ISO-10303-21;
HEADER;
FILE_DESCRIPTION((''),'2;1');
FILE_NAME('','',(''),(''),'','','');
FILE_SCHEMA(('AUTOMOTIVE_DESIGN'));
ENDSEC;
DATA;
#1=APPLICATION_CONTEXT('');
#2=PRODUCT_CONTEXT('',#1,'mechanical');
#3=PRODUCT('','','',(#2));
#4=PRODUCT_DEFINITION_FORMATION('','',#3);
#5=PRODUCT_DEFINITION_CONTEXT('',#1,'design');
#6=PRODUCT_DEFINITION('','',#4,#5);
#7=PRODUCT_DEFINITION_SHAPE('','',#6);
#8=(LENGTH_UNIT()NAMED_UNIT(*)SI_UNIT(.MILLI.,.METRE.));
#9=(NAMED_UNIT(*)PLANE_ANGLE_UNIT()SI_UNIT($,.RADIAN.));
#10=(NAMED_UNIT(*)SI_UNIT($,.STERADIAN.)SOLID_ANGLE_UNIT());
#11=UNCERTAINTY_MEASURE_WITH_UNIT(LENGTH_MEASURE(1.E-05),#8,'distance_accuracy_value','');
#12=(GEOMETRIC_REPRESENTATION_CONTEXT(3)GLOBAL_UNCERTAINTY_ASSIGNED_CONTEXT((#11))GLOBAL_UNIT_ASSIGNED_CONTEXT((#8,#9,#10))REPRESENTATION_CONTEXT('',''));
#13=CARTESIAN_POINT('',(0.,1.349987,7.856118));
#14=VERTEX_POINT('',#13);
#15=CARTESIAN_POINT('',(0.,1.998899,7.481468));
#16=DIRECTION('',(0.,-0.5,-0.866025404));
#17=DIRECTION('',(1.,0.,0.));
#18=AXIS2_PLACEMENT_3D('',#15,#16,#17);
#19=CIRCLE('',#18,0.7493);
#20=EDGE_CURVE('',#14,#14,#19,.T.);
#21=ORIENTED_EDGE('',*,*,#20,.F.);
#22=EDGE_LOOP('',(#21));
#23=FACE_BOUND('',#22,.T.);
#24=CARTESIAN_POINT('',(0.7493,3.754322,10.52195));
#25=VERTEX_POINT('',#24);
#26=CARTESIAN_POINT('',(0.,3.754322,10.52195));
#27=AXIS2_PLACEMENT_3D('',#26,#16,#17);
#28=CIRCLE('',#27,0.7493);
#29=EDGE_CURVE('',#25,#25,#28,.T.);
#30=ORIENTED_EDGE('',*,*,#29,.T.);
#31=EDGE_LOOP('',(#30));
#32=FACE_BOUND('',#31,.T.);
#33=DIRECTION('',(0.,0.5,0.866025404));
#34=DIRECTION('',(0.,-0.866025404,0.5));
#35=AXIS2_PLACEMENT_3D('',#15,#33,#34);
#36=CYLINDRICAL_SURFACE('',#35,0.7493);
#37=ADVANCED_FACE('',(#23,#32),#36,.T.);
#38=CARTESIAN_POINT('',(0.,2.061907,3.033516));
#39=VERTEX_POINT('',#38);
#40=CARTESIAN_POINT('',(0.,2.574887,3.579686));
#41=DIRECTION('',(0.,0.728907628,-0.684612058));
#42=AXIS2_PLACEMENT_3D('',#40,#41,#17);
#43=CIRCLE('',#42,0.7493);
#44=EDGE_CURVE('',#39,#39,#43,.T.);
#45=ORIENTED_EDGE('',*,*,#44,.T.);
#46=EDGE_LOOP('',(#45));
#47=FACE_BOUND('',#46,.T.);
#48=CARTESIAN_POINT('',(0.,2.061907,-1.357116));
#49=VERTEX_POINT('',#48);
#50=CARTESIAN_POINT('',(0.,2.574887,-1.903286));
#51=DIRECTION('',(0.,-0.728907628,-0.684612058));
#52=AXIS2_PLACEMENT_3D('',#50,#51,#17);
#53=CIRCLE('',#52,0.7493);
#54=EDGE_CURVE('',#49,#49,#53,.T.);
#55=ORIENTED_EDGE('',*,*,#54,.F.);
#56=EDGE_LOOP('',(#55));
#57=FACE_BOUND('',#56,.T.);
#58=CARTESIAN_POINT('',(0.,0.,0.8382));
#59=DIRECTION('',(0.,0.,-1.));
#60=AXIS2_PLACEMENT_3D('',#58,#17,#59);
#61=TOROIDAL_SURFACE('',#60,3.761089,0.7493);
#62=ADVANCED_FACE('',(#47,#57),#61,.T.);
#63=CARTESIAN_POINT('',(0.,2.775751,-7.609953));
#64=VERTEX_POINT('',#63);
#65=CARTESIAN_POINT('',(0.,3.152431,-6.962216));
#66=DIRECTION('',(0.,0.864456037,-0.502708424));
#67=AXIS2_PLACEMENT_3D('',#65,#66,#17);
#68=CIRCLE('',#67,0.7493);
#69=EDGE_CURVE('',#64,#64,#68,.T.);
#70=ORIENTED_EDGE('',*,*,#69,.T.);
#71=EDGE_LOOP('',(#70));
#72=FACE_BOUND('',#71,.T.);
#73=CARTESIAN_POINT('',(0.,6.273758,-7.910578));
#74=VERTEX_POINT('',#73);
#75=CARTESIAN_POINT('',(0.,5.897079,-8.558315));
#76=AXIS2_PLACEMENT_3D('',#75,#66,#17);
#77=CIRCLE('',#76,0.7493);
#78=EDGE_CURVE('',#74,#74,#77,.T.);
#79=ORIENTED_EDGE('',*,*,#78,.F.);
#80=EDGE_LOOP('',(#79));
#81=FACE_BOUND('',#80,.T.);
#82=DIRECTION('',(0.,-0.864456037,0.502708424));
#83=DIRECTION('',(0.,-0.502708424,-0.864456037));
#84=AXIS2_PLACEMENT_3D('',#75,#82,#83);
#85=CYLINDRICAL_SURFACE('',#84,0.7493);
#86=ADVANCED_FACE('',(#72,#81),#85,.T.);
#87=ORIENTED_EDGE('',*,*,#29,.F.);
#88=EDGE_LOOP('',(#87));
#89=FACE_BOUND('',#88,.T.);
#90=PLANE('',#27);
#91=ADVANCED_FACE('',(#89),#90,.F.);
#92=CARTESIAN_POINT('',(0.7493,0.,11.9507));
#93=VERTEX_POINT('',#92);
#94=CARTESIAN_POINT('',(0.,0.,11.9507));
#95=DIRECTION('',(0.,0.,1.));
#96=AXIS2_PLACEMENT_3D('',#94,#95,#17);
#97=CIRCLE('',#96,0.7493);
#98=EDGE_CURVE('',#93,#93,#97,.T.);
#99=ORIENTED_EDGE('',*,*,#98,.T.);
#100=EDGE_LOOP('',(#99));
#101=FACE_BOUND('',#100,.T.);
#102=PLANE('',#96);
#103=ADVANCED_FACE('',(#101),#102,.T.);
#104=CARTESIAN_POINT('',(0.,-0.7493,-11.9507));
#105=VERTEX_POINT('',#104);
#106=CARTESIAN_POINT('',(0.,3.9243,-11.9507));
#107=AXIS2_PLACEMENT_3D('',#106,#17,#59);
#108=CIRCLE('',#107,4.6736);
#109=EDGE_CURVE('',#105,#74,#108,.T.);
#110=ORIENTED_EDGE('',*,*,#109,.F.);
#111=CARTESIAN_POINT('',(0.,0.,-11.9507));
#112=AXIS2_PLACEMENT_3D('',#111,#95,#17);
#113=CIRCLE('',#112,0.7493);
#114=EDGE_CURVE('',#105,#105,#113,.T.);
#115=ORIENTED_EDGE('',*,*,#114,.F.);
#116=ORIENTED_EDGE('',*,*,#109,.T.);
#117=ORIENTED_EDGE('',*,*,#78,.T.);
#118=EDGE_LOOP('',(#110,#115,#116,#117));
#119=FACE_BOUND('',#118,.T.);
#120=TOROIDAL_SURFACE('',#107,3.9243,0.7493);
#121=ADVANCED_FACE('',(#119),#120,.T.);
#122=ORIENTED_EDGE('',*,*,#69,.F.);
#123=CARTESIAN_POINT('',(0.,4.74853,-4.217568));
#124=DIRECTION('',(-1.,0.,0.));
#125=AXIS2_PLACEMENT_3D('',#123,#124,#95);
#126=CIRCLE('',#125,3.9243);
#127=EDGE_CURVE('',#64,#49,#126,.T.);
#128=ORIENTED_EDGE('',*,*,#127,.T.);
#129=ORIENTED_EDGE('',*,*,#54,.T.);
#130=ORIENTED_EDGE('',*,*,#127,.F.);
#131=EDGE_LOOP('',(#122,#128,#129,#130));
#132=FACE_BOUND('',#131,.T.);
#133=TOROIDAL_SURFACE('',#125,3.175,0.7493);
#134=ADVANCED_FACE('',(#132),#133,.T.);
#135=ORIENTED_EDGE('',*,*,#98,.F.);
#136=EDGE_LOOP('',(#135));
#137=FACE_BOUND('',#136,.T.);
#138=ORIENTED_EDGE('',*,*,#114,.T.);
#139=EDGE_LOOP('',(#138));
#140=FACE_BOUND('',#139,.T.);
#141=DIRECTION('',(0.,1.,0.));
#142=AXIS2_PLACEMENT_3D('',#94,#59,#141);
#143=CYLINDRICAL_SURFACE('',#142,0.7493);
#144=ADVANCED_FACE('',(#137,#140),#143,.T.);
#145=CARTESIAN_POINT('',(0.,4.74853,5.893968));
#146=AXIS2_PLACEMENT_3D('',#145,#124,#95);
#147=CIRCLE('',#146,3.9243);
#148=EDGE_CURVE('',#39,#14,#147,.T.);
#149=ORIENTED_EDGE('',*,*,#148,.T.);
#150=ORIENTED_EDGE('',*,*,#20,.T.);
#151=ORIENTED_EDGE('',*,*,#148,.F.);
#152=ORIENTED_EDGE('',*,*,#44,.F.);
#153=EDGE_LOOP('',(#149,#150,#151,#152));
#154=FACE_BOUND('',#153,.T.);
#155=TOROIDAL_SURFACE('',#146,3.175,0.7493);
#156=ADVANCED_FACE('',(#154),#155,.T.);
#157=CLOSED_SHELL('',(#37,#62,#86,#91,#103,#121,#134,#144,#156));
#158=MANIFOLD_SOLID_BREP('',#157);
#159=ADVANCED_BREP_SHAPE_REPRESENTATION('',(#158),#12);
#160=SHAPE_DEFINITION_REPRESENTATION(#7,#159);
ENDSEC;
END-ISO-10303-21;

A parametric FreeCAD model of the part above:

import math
import FreeCAD as App
import Part
import Sketcher
from FreeCAD import Vector
Q = App.Units.Quantity

doc = App.newDocument("Part")
params = doc.addObject("Spreadsheet::Sheet", "Params")
for row, (alias, value) in enumerate([
    ("sketch1_diameter", "0.059 in"),
    ("sketch2_radius", "0.125 in"),
    ("sketch2_height", "0.941 in"),
    ("sketch2_length", "0.125 in"),
], start=1):
    params.set(f"A{row}", alias)
    params.set(f"B{row}", "=" + value)
    params.setAlias(f"B{row}", alias)

body = doc.addObject("PartDesign::Body", "Body")

sketch1 = doc.addObject("Sketcher::SketchObject", "Sketch")
body.addObject(sketch1)
sketch1.AttachmentSupport = (doc.XY_Plane, [""])
sketch1.MapMode = "FlatFace"
sketch1.AttachmentOffset = App.Placement(Vector(0, 0, 0.4705 * 25.4), App.Rotation())
sketch1.addGeometry(Part.Circle(Vector(0, 0, 0), Vector(0, 0, 1), 0.7), False)
sketch1.addConstraint(Sketcher.Constraint("Coincident", 0, 3, -1, 1))
sketch1.addConstraint(Sketcher.Constraint("Diameter", 0, Q("0.059 in")))
sketch1.setExpression("Constraints[1]", "Params.sketch1_diameter")

sketch2 = doc.addObject("Sketcher::SketchObject", "Sketch001")
body.addObject(sketch2)
sketch2.AttachmentSupport = (doc.YZ_Plane, [""])
sketch2.MapMode = "FlatFace"
sketch2.addGeometry(Part.LineSegment(Vector(3.8, 10.5, 0), Vector(2, 7.5, 0)), False)
sketch2.addGeometry(Part.ArcOfCircle(Part.Circle(Vector(4.7, 5.9, 0), Vector(0, 0, 1), 3.2), math.radians(150), math.radians(227)), False)
sketch2.addGeometry(Part.ArcOfCircle(Part.Circle(Vector(0, 0.8, 0), Vector(0, 0, 1), 3.8), math.radians(-47), math.radians(47)), False)
sketch2.addGeometry(Part.ArcOfCircle(Part.Circle(Vector(4.7, -4.2, 0), Vector(0, 0, 1), 3.2), math.radians(133), math.radians(240)), False)
sketch2.addGeometry(Part.LineSegment(Vector(3.2, -7, 0), Vector(5.9, -8.6, 0)), False)
sketch2.addGeometry(Part.ArcOfCircle(Part.Circle(Vector(3.9, -12, 0), Vector(0, 0, 1), 3.9), math.radians(180), math.radians(420)), False)
sketch2.addGeometry(Part.LineSegment(Vector(0, -12, 0), Vector(0, 12, 0)), False)
sketch2.addConstraint(Sketcher.Constraint("Tangent", 0, 2, 1, 1))
sketch2.addConstraint(Sketcher.Constraint("Tangent", 1, 2, 2, 2))
sketch2.addConstraint(Sketcher.Constraint("Tangent", 2, 1, 3, 1))
sketch2.addConstraint(Sketcher.Constraint("Tangent", 3, 2, 4, 1))
sketch2.addConstraint(Sketcher.Constraint("Tangent", 4, 2, 5, 2))
sketch2.addConstraint(Sketcher.Constraint("Tangent", 5, 1, 6, 1))
sketch2.addConstraint(Sketcher.Constraint("Vertical", 6))
sketch2.addConstraint(Sketcher.Constraint("Equal", 1, 3))
sketch2.addConstraint(Sketcher.Constraint("Symmetric", 5, 1, 6, 2, -1, 1))
sketch2.addConstraint(Sketcher.Constraint("PointOnObject", 2, 3, -2))
sketch2.addConstraint(Sketcher.Constraint("Vertical", 1, 3, 3, 3))
sketch2.addConstraint(Sketcher.Constraint("Angle", 0, Q("-120 deg")))
sketch2.addConstraint(Sketcher.Constraint("Radius", 1, Q("0.125 in")))
sketch2.addConstraint(Sketcher.Constraint("Radius", 5, Q("0.1545 in")))
sketch2.addConstraint(Sketcher.Constraint("DistanceY", 6, 1, 6, 2, Q("0.941 in")))
sketch2.addConstraint(Sketcher.Constraint("Distance", 4, Q("0.125 in")))
sketch2.addConstraint(Sketcher.Constraint("DistanceY", -1, 1, 2, 3, Q("0.033 in")))
sketch2.addConstraint(Sketcher.Constraint("Radius", 2, Q("3.761089 mm")))
sketch2.addConstraint(Sketcher.Constraint("DistanceY", -1, 1, 0, 1, Q("10.52195 mm")))
sketch2.setExpression("Constraints[12]", "Params.sketch2_radius")
sketch2.setExpression("Constraints[14]", "Params.sketch2_height")
sketch2.setExpression("Constraints[15]", "Params.sketch2_length")
doc.recompute()

additivepipe = doc.addObject("PartDesign::AdditivePipe", "AdditivePipe")
body.addObject(additivepipe)
additivepipe.Profile = sketch1
additivepipe.Spine = (sketch2, ["Edge1", "Edge2", "Edge3", "Edge4", "Edge5", "Edge6", "Edge7"])

doc.recompute()
